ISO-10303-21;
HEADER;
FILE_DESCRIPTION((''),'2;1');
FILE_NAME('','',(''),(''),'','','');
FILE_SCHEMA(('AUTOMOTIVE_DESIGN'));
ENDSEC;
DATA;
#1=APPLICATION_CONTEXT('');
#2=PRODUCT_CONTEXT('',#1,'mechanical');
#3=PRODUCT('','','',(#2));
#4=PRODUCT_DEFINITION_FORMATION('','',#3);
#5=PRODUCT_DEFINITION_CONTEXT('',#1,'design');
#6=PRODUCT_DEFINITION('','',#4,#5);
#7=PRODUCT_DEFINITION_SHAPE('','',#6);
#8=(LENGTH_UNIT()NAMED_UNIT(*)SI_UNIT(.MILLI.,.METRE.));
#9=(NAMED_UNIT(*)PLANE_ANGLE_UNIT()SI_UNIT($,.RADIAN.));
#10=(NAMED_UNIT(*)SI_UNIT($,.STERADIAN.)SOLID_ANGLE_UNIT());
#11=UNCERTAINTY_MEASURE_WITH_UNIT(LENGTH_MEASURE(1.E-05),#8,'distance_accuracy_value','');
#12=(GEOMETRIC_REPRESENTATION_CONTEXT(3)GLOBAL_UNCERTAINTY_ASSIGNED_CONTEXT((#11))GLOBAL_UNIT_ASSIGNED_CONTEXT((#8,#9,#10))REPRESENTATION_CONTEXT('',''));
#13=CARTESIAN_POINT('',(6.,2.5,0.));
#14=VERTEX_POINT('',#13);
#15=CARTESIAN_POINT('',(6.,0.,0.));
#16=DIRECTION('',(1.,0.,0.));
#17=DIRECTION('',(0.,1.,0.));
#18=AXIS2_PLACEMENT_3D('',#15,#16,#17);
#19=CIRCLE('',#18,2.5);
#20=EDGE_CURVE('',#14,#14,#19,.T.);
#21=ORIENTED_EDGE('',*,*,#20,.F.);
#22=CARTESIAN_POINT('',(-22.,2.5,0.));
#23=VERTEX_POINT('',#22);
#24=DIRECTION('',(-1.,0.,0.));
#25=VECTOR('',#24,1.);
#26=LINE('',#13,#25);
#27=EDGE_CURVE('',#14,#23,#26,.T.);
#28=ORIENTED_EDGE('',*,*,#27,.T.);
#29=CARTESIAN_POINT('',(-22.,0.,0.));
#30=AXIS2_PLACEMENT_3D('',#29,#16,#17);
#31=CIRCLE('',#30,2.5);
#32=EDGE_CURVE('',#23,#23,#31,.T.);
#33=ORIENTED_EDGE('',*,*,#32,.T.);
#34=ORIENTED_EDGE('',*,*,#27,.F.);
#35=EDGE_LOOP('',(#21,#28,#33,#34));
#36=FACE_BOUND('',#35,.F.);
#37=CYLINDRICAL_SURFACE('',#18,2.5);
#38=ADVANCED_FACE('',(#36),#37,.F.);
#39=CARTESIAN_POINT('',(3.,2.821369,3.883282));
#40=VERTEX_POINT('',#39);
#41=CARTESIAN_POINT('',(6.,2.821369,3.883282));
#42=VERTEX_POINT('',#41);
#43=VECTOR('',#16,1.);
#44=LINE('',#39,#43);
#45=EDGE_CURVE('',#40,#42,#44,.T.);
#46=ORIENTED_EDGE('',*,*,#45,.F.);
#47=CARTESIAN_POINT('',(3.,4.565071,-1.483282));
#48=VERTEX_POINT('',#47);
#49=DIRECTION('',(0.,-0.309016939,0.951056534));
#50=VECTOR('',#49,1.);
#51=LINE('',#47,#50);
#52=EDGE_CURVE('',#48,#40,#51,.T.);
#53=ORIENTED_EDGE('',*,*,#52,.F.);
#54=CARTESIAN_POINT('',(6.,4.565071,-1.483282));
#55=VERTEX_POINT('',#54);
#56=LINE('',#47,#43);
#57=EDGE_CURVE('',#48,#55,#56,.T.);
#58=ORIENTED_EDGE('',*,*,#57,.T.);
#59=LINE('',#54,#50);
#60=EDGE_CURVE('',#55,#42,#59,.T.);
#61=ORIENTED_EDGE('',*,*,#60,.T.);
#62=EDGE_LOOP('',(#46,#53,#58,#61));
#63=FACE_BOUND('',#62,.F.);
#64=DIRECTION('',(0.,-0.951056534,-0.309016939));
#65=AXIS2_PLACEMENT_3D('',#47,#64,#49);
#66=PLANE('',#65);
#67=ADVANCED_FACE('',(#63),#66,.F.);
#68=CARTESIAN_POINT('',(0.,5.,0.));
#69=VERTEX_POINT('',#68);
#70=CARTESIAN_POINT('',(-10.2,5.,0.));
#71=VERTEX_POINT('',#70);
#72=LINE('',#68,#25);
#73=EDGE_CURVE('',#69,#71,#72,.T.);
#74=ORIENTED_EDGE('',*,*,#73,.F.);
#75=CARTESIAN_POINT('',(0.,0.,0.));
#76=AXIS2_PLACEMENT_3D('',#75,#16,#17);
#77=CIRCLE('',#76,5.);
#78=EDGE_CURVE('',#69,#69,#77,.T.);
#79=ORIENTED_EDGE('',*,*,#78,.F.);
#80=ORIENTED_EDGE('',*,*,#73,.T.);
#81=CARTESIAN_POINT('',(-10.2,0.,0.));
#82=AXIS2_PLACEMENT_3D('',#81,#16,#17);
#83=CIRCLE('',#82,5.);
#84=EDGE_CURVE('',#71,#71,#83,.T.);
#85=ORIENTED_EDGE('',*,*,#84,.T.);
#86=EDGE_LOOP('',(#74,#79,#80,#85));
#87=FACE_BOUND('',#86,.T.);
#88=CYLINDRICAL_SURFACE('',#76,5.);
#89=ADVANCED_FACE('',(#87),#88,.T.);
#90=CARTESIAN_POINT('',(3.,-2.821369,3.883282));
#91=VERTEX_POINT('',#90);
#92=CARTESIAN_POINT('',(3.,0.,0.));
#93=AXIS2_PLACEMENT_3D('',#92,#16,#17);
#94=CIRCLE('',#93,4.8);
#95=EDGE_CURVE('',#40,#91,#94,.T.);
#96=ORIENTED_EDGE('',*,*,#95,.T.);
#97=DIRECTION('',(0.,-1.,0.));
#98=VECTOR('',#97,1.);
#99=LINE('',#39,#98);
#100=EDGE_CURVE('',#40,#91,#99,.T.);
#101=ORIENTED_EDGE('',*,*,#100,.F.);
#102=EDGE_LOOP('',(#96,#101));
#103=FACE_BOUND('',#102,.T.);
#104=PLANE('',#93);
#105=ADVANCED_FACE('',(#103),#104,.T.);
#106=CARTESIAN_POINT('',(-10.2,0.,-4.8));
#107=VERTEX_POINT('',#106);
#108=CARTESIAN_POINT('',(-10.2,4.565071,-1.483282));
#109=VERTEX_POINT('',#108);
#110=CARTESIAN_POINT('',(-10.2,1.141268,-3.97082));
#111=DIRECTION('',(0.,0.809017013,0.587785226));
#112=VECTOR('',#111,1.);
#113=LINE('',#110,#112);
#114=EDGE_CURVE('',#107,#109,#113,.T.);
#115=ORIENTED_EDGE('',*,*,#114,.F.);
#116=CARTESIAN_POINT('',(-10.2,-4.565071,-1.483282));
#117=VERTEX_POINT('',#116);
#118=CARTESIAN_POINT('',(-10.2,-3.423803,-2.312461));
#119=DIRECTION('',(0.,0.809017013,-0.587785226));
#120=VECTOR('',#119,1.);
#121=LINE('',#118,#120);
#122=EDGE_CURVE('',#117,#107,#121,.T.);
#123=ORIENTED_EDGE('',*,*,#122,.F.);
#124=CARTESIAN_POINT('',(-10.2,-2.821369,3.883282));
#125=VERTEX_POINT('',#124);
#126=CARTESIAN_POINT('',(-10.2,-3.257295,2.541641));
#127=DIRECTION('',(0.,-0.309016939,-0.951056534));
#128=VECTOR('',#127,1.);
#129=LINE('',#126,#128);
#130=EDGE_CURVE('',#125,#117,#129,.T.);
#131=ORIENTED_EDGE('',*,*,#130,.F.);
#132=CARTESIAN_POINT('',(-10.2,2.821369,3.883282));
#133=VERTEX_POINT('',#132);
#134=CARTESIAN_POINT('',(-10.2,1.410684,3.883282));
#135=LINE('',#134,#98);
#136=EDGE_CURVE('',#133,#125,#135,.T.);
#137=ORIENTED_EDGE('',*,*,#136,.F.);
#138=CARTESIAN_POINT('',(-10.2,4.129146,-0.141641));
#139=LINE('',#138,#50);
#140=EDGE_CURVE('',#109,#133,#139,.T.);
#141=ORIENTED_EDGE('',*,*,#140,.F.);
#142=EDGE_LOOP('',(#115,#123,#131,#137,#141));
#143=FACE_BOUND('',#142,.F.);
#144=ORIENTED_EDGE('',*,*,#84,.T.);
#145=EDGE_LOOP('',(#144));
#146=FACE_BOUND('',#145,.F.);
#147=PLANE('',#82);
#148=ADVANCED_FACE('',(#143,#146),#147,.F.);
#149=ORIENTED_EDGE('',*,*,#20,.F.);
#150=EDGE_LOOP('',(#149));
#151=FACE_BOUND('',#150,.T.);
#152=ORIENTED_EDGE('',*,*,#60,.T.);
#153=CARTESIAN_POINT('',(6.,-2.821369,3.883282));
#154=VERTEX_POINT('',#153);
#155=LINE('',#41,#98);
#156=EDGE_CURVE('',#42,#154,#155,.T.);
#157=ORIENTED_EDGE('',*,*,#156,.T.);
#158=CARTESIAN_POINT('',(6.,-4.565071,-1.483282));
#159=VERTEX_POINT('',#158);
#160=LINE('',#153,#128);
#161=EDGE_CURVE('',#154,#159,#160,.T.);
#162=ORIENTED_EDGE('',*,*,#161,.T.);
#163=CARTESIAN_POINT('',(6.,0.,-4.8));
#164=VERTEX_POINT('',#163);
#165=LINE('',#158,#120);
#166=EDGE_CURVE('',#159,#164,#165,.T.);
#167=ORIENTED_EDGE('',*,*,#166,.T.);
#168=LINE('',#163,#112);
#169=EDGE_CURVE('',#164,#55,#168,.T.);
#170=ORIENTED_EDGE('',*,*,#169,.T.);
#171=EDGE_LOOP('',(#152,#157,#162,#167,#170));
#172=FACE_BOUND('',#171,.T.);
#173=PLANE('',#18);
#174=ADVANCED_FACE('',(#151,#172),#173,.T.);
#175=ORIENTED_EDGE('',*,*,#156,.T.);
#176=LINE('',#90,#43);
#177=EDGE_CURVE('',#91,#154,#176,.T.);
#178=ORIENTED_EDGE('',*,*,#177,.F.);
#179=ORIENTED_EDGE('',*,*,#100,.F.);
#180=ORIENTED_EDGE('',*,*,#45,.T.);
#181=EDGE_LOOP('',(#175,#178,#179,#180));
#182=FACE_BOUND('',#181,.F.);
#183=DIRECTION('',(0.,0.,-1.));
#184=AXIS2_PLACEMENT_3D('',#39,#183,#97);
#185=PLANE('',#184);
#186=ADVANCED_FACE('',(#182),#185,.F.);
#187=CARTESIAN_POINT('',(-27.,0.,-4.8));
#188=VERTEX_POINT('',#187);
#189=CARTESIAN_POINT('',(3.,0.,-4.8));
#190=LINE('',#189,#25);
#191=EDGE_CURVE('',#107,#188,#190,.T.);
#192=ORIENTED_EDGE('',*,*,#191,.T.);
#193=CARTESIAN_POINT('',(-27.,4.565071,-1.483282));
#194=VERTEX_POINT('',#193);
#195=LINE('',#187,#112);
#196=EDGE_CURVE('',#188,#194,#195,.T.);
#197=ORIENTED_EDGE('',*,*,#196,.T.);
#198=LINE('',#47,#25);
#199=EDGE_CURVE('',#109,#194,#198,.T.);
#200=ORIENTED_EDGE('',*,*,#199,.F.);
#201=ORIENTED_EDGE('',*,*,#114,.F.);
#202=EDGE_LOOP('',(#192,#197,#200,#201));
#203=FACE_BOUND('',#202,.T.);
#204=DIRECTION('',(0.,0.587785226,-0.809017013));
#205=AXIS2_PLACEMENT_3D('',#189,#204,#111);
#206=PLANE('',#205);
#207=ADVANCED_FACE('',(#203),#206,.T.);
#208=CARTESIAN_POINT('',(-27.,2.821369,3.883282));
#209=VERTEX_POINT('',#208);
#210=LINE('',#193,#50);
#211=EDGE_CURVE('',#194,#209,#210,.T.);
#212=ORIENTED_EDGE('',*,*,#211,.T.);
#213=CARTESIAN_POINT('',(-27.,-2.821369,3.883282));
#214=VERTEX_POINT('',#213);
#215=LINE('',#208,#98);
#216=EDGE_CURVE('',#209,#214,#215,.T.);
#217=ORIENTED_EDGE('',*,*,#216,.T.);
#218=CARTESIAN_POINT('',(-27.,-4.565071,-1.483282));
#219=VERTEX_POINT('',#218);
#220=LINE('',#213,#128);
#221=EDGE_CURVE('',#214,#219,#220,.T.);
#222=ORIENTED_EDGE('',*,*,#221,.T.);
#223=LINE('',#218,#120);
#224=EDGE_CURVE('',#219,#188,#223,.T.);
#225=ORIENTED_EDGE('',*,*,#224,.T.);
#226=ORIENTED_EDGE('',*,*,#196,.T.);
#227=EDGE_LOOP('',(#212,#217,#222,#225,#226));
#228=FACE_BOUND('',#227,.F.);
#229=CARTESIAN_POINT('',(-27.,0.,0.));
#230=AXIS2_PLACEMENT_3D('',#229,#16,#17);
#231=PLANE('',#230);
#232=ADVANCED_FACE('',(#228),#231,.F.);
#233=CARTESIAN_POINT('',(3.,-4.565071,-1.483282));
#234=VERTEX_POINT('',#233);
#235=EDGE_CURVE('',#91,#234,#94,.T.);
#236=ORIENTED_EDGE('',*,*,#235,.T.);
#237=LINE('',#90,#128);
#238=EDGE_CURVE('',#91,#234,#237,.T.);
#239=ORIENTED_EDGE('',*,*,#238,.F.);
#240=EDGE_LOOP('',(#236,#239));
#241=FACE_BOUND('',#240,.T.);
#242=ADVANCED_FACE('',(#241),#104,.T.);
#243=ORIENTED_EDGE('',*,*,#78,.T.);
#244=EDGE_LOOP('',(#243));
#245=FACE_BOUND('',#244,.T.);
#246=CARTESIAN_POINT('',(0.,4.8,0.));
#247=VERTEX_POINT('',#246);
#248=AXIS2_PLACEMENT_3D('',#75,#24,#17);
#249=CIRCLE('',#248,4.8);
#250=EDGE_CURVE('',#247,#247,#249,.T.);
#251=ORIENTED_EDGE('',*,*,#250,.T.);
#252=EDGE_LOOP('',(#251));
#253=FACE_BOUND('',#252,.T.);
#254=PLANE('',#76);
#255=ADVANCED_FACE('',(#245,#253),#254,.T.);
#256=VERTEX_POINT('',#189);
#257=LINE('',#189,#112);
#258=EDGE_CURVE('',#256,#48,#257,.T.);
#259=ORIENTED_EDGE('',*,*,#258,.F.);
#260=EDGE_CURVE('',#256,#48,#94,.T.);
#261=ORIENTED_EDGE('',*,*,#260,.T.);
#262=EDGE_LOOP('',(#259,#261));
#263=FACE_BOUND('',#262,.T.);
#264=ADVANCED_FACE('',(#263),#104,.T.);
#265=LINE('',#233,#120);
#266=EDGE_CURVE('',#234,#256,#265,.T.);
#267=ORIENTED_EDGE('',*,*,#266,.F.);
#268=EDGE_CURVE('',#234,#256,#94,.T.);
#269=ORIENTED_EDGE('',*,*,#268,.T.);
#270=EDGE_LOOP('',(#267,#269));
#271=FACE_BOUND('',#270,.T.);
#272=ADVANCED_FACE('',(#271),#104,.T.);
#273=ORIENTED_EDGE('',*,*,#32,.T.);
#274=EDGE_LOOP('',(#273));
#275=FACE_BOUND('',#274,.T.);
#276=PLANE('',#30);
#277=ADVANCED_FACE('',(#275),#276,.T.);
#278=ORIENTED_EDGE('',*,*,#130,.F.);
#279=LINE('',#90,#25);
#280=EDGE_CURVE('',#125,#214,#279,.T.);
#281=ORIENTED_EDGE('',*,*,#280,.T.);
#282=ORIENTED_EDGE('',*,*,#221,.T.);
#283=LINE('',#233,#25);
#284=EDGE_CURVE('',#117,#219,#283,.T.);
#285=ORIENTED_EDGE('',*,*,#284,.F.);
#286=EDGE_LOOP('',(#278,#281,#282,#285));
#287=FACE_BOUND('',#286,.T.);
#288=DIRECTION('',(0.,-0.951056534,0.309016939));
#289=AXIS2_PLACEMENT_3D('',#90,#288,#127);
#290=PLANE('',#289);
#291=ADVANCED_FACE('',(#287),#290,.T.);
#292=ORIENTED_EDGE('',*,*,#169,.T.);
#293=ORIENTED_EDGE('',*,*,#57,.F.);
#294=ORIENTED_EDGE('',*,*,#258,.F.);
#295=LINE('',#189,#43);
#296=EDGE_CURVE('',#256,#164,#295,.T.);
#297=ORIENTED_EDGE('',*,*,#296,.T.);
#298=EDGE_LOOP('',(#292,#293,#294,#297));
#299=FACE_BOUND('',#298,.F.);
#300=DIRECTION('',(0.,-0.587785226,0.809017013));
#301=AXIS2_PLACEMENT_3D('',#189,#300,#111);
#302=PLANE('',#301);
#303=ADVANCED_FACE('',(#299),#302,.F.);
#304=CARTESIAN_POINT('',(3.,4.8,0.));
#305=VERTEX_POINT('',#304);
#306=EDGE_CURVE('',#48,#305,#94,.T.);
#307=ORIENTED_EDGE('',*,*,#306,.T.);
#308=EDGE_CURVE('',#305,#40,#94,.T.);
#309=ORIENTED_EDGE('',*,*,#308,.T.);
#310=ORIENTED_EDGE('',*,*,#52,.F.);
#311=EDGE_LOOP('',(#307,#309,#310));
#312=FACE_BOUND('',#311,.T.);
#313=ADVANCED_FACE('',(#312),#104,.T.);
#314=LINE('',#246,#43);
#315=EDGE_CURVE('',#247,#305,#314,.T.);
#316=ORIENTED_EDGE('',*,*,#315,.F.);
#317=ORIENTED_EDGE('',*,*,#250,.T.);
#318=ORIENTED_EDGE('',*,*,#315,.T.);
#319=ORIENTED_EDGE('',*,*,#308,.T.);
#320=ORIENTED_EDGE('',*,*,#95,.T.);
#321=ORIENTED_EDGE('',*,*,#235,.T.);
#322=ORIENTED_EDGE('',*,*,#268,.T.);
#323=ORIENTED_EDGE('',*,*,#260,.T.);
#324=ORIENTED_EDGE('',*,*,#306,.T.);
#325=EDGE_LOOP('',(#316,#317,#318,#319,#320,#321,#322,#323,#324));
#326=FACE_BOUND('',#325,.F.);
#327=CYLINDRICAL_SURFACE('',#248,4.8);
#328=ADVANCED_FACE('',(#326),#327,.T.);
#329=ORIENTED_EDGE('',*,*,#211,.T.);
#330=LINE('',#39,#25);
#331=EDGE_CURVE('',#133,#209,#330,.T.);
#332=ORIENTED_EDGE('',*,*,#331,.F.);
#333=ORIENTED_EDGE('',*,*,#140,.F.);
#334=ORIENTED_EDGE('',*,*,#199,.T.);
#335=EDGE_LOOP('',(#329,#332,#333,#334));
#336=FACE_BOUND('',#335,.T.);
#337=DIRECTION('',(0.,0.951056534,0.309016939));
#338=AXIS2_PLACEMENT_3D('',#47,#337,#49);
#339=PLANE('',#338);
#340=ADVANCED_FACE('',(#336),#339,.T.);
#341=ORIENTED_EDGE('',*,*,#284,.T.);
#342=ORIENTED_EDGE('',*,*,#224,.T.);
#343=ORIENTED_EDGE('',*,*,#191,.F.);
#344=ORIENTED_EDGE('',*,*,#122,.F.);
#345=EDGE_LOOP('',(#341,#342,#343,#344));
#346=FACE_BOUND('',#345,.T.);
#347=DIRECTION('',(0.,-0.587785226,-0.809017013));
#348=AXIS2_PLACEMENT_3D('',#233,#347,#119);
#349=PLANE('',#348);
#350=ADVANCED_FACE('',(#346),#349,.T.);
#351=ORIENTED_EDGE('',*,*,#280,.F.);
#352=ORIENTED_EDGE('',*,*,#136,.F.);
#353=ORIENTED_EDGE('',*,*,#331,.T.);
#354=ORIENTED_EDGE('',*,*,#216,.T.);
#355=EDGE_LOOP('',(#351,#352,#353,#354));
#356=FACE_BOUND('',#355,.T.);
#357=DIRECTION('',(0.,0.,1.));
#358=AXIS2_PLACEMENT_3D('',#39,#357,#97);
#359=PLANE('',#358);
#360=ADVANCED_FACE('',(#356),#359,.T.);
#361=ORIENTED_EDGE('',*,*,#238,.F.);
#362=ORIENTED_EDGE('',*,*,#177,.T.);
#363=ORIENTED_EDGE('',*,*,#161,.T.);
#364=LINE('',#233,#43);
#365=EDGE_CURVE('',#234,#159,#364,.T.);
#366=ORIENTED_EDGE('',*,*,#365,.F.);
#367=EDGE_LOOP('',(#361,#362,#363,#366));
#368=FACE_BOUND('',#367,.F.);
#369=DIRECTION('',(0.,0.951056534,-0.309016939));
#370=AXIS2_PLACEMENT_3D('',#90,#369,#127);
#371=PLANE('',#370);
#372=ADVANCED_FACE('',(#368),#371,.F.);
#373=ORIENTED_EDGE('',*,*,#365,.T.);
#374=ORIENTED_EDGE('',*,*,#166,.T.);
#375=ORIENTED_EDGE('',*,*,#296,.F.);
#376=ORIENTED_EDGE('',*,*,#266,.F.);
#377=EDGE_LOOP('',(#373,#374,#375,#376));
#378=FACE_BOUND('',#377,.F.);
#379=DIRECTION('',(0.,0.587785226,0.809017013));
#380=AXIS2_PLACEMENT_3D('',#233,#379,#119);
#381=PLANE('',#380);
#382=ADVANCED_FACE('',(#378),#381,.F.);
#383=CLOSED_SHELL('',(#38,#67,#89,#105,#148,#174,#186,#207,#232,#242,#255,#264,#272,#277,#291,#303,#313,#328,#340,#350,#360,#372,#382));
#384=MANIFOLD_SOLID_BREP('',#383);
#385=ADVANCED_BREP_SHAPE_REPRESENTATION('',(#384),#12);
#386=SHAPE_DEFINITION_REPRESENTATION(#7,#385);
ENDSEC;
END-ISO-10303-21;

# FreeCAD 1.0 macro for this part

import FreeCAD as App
import Part
import Sketcher

V = App.Vector
Q = App.Units.Quantity

doc = App.newDocument("Part")
body = doc.addObject("PartDesign::Body", "Body")

# Sketch on YZ plane
sketch1 = body.newObject("Sketcher::SketchObject", "Sketch")
sketch1.AttachmentSupport = (doc.getObject("YZ_Plane"), [""])
sketch1.MapMode = "FlatFace"
sketch1.addGeometry(Part.Circle(V(0, 0, 0), V(0, 0, 1), 5), False)
sketch1.addConstraint(Sketcher.Constraint("Coincident", 0, 3, -1, 1))
sketch1.addConstraint(Sketcher.Constraint("Diameter", 0, Q("10 mm")))
pad1 = body.newObject("PartDesign::Pad", "Pad")
pad1.Profile = sketch1
pad1.Length = 10.2
pad1.Reversed = True

# Sketch on YZ plane
sketch2 = body.newObject("Sketcher::SketchObject", "Sketch001")
sketch2.AttachmentSupport = (doc.getObject("YZ_Plane"), [""])
sketch2.MapMode = "FlatFace"
sketch2.addGeometry(Part.Circle(V(0, 0, 0), V(0, 0, 1), 4.8), False)
sketch2.addConstraint(Sketcher.Constraint("Coincident", 0, 3, -1, 1))
sketch2.addConstraint(Sketcher.Constraint("Diameter", 0, Q("9.6 mm")))
pad2 = body.newObject("PartDesign::Pad", "Pad001")
pad2.Profile = sketch2
pad2.Length = 3

# Sketch on YZ plane
sketch3 = body.newObject("Sketcher::SketchObject", "Sketch002")
sketch3.AttachmentSupport = (doc.getObject("YZ_Plane"), [""])
sketch3.MapMode = "FlatFace"
sketch3.AttachmentOffset = App.Placement(V(0, 0, 3), App.Rotation())
sketch3.addGeometry(Part.LineSegment(V(-5, -1, 0), V(0, -5, 0)), False)
sketch3.addGeometry(Part.LineSegment(V(0, -5, 0), V(5, -1, 0)), False)
sketch3.addGeometry(Part.LineSegment(V(5, -1, 0), V(3, 4, 0)), False)
sketch3.addGeometry(Part.LineSegment(V(3, 4, 0), V(-3, 4, 0)), False)
sketch3.addGeometry(Part.LineSegment(V(-3, 4, 0), V(-5, -1, 0)), False)
sketch3.addConstraint(Sketcher.Constraint("Coincident", 0, 2, 1, 1))
sketch3.addConstraint(Sketcher.Constraint("Coincident", 1, 2, 2, 1))
sketch3.addConstraint(Sketcher.Constraint("Coincident", 2, 2, 3, 1))
sketch3.addConstraint(Sketcher.Constraint("Coincident", 3, 2, 4, 1))
sketch3.addConstraint(Sketcher.Constraint("Coincident", 4, 2, 0, 1))
sketch3.addConstraint(Sketcher.Constraint("Horizontal", 3))
sketch3.addConstraint(Sketcher.Constraint("Symmetric", 1, 2, 4, 2, -2))
sketch3.addConstraint(Sketcher.Constraint("PointOnObject", 0, 2, -2))
sketch3.addConstraint(Sketcher.Constraint("Equal", 1, 2))
sketch3.addConstraint(Sketcher.Constraint("Equal", 2, 4))
sketch3.addConstraint(Sketcher.Constraint("Angle", 0, Q("-35.999998 deg")))
sketch3.addConstraint(Sketcher.Constraint("Angle", 2, Q("107.999997 deg")))
sketch3.addConstraint(Sketcher.Constraint("DistanceY", 0, 2, -1, 1, Q("4.8 mm")))
sketch3.addConstraint(Sketcher.Constraint("DistanceX", 2, 2, 1, 2, Q("1.743702 mm")))
pad3 = body.newObject("PartDesign::Pad", "Pad002")
pad3.Profile = sketch3
pad3.Type = "TwoLengths"
pad3.Length = 3
pad3.Length2 = 30

# Sketch on YZ plane
sketch4 = body.newObject("Sketcher::SketchObject", "Sketch003")
sketch4.AttachmentSupport = (doc.getObject("YZ_Plane"), [""])
sketch4.MapMode = "FlatFace"
sketch4.AttachmentOffset = App.Placement(V(0, 0, 6), App.Rotation())
sketch4.addGeometry(Part.Circle(V(0, 0, 0), V(0, 0, 1), 2.5), False)
sketch4.addConstraint(Sketcher.Constraint("Coincident", 0, 3, -1, 1))
sketch4.addConstraint(Sketcher.Constraint("Diameter", 0, Q("5 mm")))
pocket1 = body.newObject("PartDesign::Pocket", "Pocket")
pocket1.Profile = sketch4
pocket1.Length = 28

doc.recompute()
